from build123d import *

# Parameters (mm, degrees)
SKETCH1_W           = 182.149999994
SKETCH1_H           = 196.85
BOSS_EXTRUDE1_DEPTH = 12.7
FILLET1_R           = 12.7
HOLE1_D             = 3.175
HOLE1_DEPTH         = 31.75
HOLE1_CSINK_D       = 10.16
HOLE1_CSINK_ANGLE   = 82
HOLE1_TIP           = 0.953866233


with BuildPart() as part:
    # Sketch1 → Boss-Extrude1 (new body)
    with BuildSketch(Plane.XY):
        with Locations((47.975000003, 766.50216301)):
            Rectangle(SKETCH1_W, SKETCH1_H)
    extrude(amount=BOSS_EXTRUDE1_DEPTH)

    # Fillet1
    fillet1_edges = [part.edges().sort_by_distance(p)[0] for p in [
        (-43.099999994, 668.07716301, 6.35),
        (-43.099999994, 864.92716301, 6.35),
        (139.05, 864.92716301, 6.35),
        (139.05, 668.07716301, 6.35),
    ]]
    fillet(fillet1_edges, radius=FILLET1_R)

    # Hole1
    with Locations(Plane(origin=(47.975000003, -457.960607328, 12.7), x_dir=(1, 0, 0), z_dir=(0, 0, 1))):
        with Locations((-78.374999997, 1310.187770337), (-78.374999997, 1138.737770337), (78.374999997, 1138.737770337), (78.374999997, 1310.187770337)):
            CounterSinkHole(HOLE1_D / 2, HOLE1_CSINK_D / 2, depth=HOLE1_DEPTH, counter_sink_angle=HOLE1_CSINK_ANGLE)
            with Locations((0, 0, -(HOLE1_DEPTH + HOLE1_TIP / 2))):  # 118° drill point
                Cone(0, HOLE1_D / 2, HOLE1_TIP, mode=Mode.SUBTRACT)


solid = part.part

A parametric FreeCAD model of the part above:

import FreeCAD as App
import Part
import Sketcher
Q = App.Units.Quantity


def edges_at(feature, points):
    """Names of the edges that pass closest to the given points."""
    edges = feature.Shape.Edges
    near = lambda p: min(range(len(edges)), key=lambda i: edges[i].distToShape(Part.Vertex(*p))[0])
    return sorted({f"Edge{near(p) + 1}" for p in points})

doc = App.newDocument("Part")
body = doc.addObject("PartDesign::Body", "Body")

sketch1 = body.newObject("Sketcher::SketchObject", "Sketch")
sketch1.AttachmentSupport = (doc.getObject("XY_Plane"), [""])
sketch1.MapMode = "FlatFace"
sketch1.addGeometry([
    Part.LineSegment(App.Vector(-43.1, 864.927163, 0), App.Vector(-43.1, 668.077163, 0)),
    Part.LineSegment(App.Vector(-43.1, 668.077163, 0), App.Vector(139.05, 668.077163, 0)),
    Part.LineSegment(App.Vector(139.05, 668.077163, 0), App.Vector(139.05, 864.927163, 0)),
    Part.LineSegment(App.Vector(139.05, 864.927163, 0), App.Vector(-43.1, 864.927163, 0)),
], False)
sketch1.addConstraint([
    Sketcher.Constraint("Coincident", 0, 2, 1, 1),
    Sketcher.Constraint("Coincident", 1, 2, 2, 1),
    Sketcher.Constraint("Coincident", 2, 2, 3, 1),
    Sketcher.Constraint("Coincident", 3, 2, 0, 1),
    Sketcher.Constraint("Vertical", 0),
    Sketcher.Constraint("Horizontal", 1),
    Sketcher.Constraint("Vertical", 2),
    Sketcher.Constraint("Horizontal", 3),
    Sketcher.Constraint("DistanceY", 0, 2, 0, 1, Q("7.75 in")),
    Sketcher.Constraint("DistanceX", 1, 1, 1, 2, 182.15),
    Sketcher.Constraint("DistanceX", 0, 2, -1, 1, 43.1),
    Sketcher.Constraint("DistanceY", -1, 1, 0, 2, 668.077163),
])
pad1 = body.newObject("PartDesign::Pad", "Pad")
pad1.Profile = sketch1
pad1.Length = Q("0.5 in")
doc.recompute()

fillet = body.newObject("PartDesign::Fillet", "Fillet")
fillet.Base = (pad1, edges_at(pad1, [
    (-43.1, 668.077, 6.35),
    (-43.1, 864.927, 6.35),
    (139.05, 864.927, 6.35),
    (139.05, 668.077, 6.35),
]))
fillet.Radius = Q("0.5 in")

sketch2 = body.newObject("Sketcher::SketchObject", "Sketch001")
sketch2.AttachmentSupport = (doc.getObject("XY_Plane"), [""])
sketch2.MapMode = "FlatFace"
sketch2.AttachmentOffset = App.Placement(App.Vector(0, 0, 0.5 * 25.4), App.Rotation())
sketch2.addGeometry([
    Part.Circle(App.Vector(-30.4, 852.227163, 0), App.Vector(0, 0, 1), 1.5875),
    Part.Circle(App.Vector(-30.4, 680.777163, 0), App.Vector(0, 0, 1), 1.5875),
    Part.Circle(App.Vector(126.35, 680.777163, 0), App.Vector(0, 0, 1), 1.5875),
    Part.Circle(App.Vector(126.35, 852.227163, 0), App.Vector(0, 0, 1), 1.5875),
], False)
sketch2.addConstraint([
    Sketcher.Constraint("Equal", 0, 1),
    Sketcher.Constraint("Equal", 1, 2),
    Sketcher.Constraint("Equal", 2, 3),
    Sketcher.Constraint("Horizontal", 1, 3, 2, 3),
    Sketcher.Constraint("Horizontal", 0, 3, 3, 3),
    Sketcher.Constraint("Vertical", 0, 3, 1, 3),
    Sketcher.Constraint("Vertical", 2, 3, 3, 3),
    Sketcher.Constraint("Diameter", 0, Q("0.125 in")),
    Sketcher.Constraint("DistanceY", 1, 3, 0, 3, Q("6.75 in")),
    Sketcher.Constraint("DistanceX", 0, 3, -1, 1, 30.4),
    Sketcher.Constraint("DistanceX", -1, 1, 2, 3, 126.35),
    Sketcher.Constraint("DistanceY", -1, 1, 0, 3, 852.227163),
])
doc.recompute()
hole = body.newObject("PartDesign::Hole", "Hole")
hole.Profile = sketch2
hole.ThreadType = "None"
hole.Diameter = Q("0.125 in")
hole.DepthType = "Dimension"
hole.Depth = Q("1.25 in")
hole.DrillPoint = "Angled"
hole.DrillPointAngle = 118
hole.HoleCutType = "Countersink"
hole.HoleCutDiameter = Q("0.4 in")
hole.HoleCutCountersinkAngle = 82

doc.recompute()
